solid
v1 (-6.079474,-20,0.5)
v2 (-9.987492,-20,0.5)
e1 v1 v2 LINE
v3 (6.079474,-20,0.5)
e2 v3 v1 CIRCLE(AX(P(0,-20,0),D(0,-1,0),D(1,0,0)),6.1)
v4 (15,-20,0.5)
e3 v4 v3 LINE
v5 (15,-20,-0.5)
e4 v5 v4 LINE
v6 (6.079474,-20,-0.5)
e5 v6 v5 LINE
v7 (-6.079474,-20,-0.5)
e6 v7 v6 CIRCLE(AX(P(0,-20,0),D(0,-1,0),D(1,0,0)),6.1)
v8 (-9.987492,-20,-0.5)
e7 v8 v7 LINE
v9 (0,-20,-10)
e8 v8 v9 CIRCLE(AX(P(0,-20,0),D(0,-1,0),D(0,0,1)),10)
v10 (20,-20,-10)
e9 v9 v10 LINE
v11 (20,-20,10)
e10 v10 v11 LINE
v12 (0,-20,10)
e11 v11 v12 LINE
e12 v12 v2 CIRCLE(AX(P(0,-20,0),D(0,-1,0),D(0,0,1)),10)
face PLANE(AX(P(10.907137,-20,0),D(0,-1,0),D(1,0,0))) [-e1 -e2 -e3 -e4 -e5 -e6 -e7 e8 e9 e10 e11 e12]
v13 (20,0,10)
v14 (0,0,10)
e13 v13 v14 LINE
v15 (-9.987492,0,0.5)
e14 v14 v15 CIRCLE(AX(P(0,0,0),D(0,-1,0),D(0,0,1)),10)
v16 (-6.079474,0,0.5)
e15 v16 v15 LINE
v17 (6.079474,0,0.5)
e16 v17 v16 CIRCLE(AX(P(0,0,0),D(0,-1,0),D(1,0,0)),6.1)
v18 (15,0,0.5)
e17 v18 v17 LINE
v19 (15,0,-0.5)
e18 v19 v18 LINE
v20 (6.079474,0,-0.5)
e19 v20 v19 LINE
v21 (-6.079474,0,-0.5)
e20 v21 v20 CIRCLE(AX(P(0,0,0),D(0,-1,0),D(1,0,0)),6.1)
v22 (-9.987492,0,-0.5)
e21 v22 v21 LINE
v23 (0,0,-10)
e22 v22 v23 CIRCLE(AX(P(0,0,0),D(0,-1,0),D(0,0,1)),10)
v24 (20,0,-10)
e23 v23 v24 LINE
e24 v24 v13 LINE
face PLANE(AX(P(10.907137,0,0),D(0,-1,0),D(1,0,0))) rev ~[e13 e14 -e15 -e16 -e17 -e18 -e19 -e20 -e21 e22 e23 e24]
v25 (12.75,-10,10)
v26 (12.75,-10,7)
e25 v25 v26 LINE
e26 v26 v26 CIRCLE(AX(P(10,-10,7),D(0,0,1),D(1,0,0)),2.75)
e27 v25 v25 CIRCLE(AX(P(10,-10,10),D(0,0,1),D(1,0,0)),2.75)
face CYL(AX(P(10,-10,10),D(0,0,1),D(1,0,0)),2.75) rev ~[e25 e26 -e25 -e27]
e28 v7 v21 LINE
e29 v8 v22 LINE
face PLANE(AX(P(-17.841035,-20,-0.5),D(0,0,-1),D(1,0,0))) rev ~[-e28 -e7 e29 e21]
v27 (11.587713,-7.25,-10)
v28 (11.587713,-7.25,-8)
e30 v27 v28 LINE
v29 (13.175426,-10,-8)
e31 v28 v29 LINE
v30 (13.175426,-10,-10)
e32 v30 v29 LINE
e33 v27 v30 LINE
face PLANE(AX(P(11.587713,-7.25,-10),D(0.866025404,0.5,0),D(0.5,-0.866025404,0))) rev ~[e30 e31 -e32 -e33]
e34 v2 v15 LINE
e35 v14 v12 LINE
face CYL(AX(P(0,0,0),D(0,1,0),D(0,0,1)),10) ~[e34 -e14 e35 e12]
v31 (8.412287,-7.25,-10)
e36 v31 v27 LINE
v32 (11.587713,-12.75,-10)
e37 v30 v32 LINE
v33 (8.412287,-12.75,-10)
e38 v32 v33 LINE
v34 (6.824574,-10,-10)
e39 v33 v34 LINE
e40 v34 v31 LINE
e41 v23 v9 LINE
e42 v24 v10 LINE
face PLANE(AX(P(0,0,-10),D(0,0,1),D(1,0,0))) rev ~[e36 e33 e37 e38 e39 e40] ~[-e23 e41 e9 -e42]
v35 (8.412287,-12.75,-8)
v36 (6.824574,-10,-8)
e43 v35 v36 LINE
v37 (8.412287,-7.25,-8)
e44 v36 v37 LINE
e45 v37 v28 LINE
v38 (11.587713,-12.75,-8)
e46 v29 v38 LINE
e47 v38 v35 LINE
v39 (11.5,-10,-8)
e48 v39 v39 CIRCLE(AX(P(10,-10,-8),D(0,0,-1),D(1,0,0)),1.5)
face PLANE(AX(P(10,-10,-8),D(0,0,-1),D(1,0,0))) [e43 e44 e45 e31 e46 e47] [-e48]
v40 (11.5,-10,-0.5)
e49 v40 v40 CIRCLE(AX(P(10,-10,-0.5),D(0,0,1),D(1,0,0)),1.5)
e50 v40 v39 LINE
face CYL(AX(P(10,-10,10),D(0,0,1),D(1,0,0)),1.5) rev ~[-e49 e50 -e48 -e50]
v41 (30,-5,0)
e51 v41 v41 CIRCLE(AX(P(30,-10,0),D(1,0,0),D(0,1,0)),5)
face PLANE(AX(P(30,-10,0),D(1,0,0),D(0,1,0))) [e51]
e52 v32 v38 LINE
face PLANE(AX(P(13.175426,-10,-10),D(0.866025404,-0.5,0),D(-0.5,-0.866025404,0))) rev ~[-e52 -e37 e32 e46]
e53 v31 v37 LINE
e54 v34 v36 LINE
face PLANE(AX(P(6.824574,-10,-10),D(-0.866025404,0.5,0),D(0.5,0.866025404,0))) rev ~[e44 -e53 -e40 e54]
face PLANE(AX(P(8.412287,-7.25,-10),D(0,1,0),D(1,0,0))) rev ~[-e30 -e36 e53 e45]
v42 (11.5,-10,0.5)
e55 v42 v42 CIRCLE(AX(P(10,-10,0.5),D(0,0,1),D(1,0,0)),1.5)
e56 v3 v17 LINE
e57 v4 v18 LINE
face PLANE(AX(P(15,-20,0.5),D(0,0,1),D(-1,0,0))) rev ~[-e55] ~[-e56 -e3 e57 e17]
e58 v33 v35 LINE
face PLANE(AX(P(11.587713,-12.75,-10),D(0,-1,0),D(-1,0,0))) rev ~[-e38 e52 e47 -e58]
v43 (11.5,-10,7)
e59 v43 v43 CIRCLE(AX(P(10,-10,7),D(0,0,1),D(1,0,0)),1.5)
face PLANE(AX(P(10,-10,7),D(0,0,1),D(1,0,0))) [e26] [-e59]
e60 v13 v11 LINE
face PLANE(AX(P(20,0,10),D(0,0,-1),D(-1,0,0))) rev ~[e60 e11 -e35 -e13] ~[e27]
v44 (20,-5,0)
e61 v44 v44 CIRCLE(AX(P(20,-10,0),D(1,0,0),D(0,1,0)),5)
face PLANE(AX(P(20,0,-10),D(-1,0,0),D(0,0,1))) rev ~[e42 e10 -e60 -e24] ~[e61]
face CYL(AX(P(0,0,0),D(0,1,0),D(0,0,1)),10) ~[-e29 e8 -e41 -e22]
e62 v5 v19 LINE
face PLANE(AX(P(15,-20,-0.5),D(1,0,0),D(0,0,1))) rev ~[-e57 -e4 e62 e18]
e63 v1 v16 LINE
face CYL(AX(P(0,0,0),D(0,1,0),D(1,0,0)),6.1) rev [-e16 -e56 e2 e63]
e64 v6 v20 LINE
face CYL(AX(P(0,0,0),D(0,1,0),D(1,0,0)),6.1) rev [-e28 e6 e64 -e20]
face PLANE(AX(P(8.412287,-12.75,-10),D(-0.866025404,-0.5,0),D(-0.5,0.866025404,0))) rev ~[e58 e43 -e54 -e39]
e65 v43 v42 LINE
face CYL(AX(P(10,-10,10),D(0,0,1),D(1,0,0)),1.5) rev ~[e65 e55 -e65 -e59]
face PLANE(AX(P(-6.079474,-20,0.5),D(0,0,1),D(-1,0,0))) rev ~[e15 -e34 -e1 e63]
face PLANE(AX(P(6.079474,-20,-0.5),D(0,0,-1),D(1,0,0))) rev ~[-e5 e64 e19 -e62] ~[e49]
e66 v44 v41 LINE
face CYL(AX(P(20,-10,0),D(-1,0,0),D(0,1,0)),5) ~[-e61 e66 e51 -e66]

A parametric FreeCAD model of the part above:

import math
import FreeCAD as App
import Part
import Sketcher

V = App.Vector
Q = App.Units.Quantity

doc = App.newDocument("Part")
body = doc.addObject("PartDesign::Body", "Body")

sketch1 = doc.addObject("Sketcher::SketchObject", "Sketch")
body.addObject(sketch1)
sketch1.AttachmentSupport = (doc.XZ_Plane, [""])
sketch1.MapMode = "FlatFace"
sketch1.addGeometry(Part.LineSegment(V(0, -10, 0), V(20, -10, 0)), False)
sketch1.addGeometry(Part.LineSegment(V(20, -10, 0), V(20, 10, 0)), False)
sketch1.addGeometry(Part.LineSegment(V(20, 10, 0), V(0, 10, 0)), False)
sketch1.addGeometry(Part.ArcOfCircle(Part.Circle(V(0, 0, 0), V(0, 0, 1), 10), math.radians(90), math.radians(270)), False)
sketch1.addGeometry(Part.Circle(V(0, 0, 0), V(0, 0, 1), 6), False)
sketch1.addConstraint(Sketcher.Constraint("Coincident", 0, 2, 1, 1))
sketch1.addConstraint(Sketcher.Constraint("Coincident", 1, 2, 2, 1))
sketch1.addConstraint(Sketcher.Constraint("Tangent", 2, 2, 3, 1))
sketch1.addConstraint(Sketcher.Constraint("Tangent", 3, 2, 0, 1))
sketch1.addConstraint(Sketcher.Constraint("Horizontal", 0))
sketch1.addConstraint(Sketcher.Constraint("Vertical", 1))
sketch1.addConstraint(Sketcher.Constraint("Horizontal", 2))
sketch1.addConstraint(Sketcher.Constraint("Coincident", 3, 3, -1, 1))
sketch1.addConstraint(Sketcher.Constraint("Coincident", 4, 3, -1, 1))
sketch1.addConstraint(Sketcher.Constraint("Equal", 2, 1))
sketch1.addConstraint(Sketcher.Constraint("Radius", 3, Q("10 mm")))
sketch1.addConstraint(Sketcher.Constraint("Diameter", 4, Q("12.2 mm")))
pad1 = doc.addObject("PartDesign::Pad", "Pad")
body.addObject(pad1)
pad1.Profile = sketch1
pad1.Length = 20

sketch2 = doc.addObject("Sketcher::SketchObject", "Sketch001")
body.addObject(sketch2)
sketch2.AttachmentSupport = (doc.XY_Plane, [""])
sketch2.MapMode = "FlatFace"
sketch2.AttachmentOffset = App.Placement(V(0, 0, 10), App.Rotation())
sketch2.addGeometry(Part.Circle(V(10, -10, 0), V(0, 0, 1), 1.5), False)
sketch2.addConstraint(Sketcher.Constraint("Diameter", 0, Q("3 mm")))
sketch2.addConstraint(Sketcher.Constraint("DistanceX", -1, 1, 0, 3, Q("10 mm")))
sketch2.addConstraint(Sketcher.Constraint("DistanceY", 0, 3, -1, 1, Q("10 mm")))
pocket1 = doc.addObject("PartDesign::Pocket", "Pocket")
body.addObject(pocket1)
pocket1.Profile = sketch2
pocket1.Length = 25

sketch3 = doc.addObject("Sketcher::SketchObject", "Sketch002")
body.addObject(sketch3)
sketch3.AttachmentSupport = (doc.XZ_Plane, [""])
sketch3.MapMode = "FlatFace"
sketch3.AttachmentOffset = App.Placement(V(0, 0, 20), App.Rotation())
sketch3.addGeometry(Part.LineSegment(V(-17.8, 0.5, 0), V(-17.8, -0.5, 0)), False)
sketch3.addGeometry(Part.LineSegment(V(-17.8, -0.5, 0), V(-6.1, -0.5, 0)), False)
sketch3.addGeometry(Part.ArcOfCircle(Part.Circle(V(0, 0, 0), V(0, 0, 1), 6.1), math.radians(175.3), math.radians(184.7)), False)
sketch3.addGeometry(Part.LineSegment(V(-6.1, 0.5, 0), V(-17.8, 0.5, 0)), False)
sketch3.addGeometry(Part.LineSegment(V(15, 0.5, 0), V(6.1, 0.5, 0)), False)
sketch3.addGeometry(Part.ArcOfCircle(Part.Circle(V(0, 0, 0), V(0, 0, 1), 6.1), math.radians(0), math.radians(4.7)), False)
sketch3.addGeometry(Part.ArcOfCircle(Part.Circle(V(0, 0, 0), V(0, 0, 1), 6.1), math.radians(-4.7), math.radians(0)), False)
sketch3.addGeometry(Part.LineSegment(V(6.1, -0.5, 0), V(15, -0.5, 0)), False)
sketch3.addGeometry(Part.LineSegment(V(15, -0.5, 0), V(15, 0.5, 0)), False)
sketch3.addConstraint(Sketcher.Constraint("Coincident", 0, 2, 1, 1))
sketch3.addConstraint(Sketcher.Constraint("Coincident", 1, 2, 2, 2))
sketch3.addConstraint(Sketcher.Constraint("Coincident", 2, 1, 3, 1))
sketch3.addConstraint(Sketcher.Constraint("Coincident", 3, 2, 0, 1))
sketch3.addConstraint(Sketcher.Constraint("Coincident", 4, 2, 5, 2))
sketch3.addConstraint(Sketcher.Constraint("Tangent", 5, 1, 6, 2))
sketch3.addConstraint(Sketcher.Constraint("Coincident", 6, 1, 7, 1))
sketch3.addConstraint(Sketcher.Constraint("Coincident", 7, 2, 8, 1))
sketch3.addConstraint(Sketcher.Constraint("Coincident", 8, 2, 4, 1))
sketch3.addConstraint(Sketcher.Constraint("Vertical", 0))
sketch3.addConstraint(Sketcher.Constraint("Horizontal", 1))
sketch3.addConstraint(Sketcher.Constraint("Horizontal", 3))
sketch3.addConstraint(Sketcher.Constraint("Horizontal", 4))
sketch3.addConstraint(Sketcher.Constraint("Horizontal", 7))
sketch3.addConstraint(Sketcher.Constraint("Vertical", 8))
sketch3.addConstraint(Sketcher.Constraint("Coincident", 2, 3, -1, 1))
sketch3.addConstraint(Sketcher.Constraint("Coincident", 5, 3, -1, 1))
sketch3.addConstraint(Sketcher.Constraint("Equal", 2, 5))
sketch3.addConstraint(Sketcher.Constraint("Equal", 5, 6))
sketch3.addConstraint(Sketcher.Constraint("PointOnObject", 5, 1, -1))
sketch3.addConstraint(Sketcher.Constraint("Horizontal", 3, 2, 4, 2))
sketch3.addConstraint(Sketcher.Constraint("Horizontal", 1, 2, 6, 1))
sketch3.addConstraint(Sketcher.Constraint("Vertical", 1, 2, 2, 1))
sketch3.addConstraint(Sketcher.Constraint("Radius", 2, Q("6.1 mm")))
sketch3.addConstraint(Sketcher.Constraint("DistanceY", 0, 2, 0, 1, Q("1 mm")))
sketch3.addConstraint(Sketcher.Constraint("DistanceX", -1, 1, 7, 2, Q("15 mm")))
sketch3.addConstraint(Sketcher.Constraint("DistanceX", 1, 1, 1, 2, Q("11.761561 mm")))
pocket2 = doc.addObject("PartDesign::Pocket", "Pocket001")
body.addObject(pocket2)
pocket2.Profile = sketch3
pocket2.Length = 25

sketch4 = doc.addObject("Sketcher::SketchObject", "Sketch003")
body.addObject(sketch4)
sketch4.AttachmentSupport = (doc.YZ_Plane, [""])
sketch4.MapMode = "FlatFace"
sketch4.AttachmentOffset = App.Placement(V(0, 0, 20), App.Rotation())
sketch4.addGeometry(Part.Circle(V(-10, 0, 0), V(0, 0, 1), 5), False)
sketch4.addConstraint(Sketcher.Constraint("PointOnObject", 0, 3, -1))
sketch4.addConstraint(Sketcher.Constraint("Diameter", 0, Q("10 mm")))
sketch4.addConstraint(Sketcher.Constraint("DistanceX", 0, 3, -1, 1, Q("10 mm")))
pad2 = doc.addObject("PartDesign::Pad", "Pad001")
body.addObject(pad2)
pad2.Profile = sketch4
pad2.Length = 10

sketch5 = doc.addObject("Sketcher::SketchObject", "Sketch004")
body.addObject(sketch5)
sketch5.AttachmentSupport = (doc.XY_Plane, [""])
sketch5.MapMode = "FlatFace"
sketch5.AttachmentOffset = App.Placement(V(0, 0, 10), App.Rotation())
sketch5.addGeometry(Part.Circle(V(10, -10, 0), V(0, 0, 1), 2.8), False)
sketch5.addGeometry(Part.Circle(V(10, -10, 0), V(0, 0, 1), 1.5), False)
sketch5.addConstraint(Sketcher.Constraint("Coincident", 1, 3, 0, 3))
sketch5.addConstraint(Sketcher.Constraint("Diameter", 1, Q("3 mm")))
sketch5.addConstraint(Sketcher.Constraint("Diameter", 0, Q("5.5 mm")))
sketch5.addConstraint(Sketcher.Constraint("DistanceX", -1, 1, 0, 3, Q("10 mm")))
sketch5.addConstraint(Sketcher.Constraint("DistanceY", 0, 3, -1, 1, Q("10 mm")))
pocket3 = doc.addObject("PartDesign::Pocket", "Pocket002")
body.addObject(pocket3)
pocket3.Profile = sketch5
pocket3.Length = 3

sketch6 = doc.addObject("Sketcher::SketchObject", "Sketch005")
body.addObject(sketch6)
sketch6.AttachmentSupport = (doc.XY_Plane, [""])
sketch6.MapMode = "FlatFace"
sketch6.AttachmentOffset = App.Placement(V(0, 0, -10), App.Rotation())
sketch6.addGeometry(Part.LineSegment(V(11.6, -12.8, 0), V(8.4, -12.8, 0)), False)
sketch6.addGeometry(Part.LineSegment(V(8.4, -12.8, 0), V(6.8, -10, 0)), False)
sketch6.addGeometry(Part.LineSegment(V(6.8, -10, 0), V(8.4, -7.2, 0)), False)
sketch6.addGeometry(Part.LineSegment(V(8.4, -7.2, 0), V(11.6, -7.2, 0)), False)
sketch6.addGeometry(Part.LineSegment(V(11.6, -7.2, 0), V(13.2, -10, 0)), False)
sketch6.addGeometry(Part.LineSegment(V(13.2, -10, 0), V(11.6, -12.8, 0)), False)
sketch6.addGeometry(Part.Circle(V(10, -10, 0), V(0, 0, 1), 1.5), False)
sketch6.addConstraint(Sketcher.Constraint("Coincident", 0, 2, 1, 1))
sketch6.addConstraint(Sketcher.Constraint("Coincident", 1, 2, 2, 1))
sketch6.addConstraint(Sketcher.Constraint("Coincident", 2, 2, 3, 1))
sketch6.addConstraint(Sketcher.Constraint("Coincident", 3, 2, 4, 1))
sketch6.addConstraint(Sketcher.Constraint("Coincident", 4, 2, 5, 1))
sketch6.addConstraint(Sketcher.Constraint("Coincident", 5, 2, 0, 1))
sketch6.addConstraint(Sketcher.Constraint("Horizontal", 0))
sketch6.addConstraint(Sketcher.Constraint("Horizontal", 3))
sketch6.addConstraint(Sketcher.Constraint("Parallel", 1, 4))
sketch6.addConstraint(Sketcher.Constraint("Parallel", 2, 5))
sketch6.addConstraint(Sketcher.Constraint("Horizontal", 6, 3, 1, 2))
sketch6.addConstraint(Sketcher.Constraint("Horizontal", 1, 2, 4, 2))
sketch6.addConstraint(Sketcher.Constraint("Vertical", 0, 2, 2, 2))
sketch6.addConstraint(Sketcher.Constraint("Vertical", 3, 2, 5, 2))
sketch6.addConstraint(Sketcher.Constraint("Diameter", 6, Q("3 mm")))
sketch6.addConstraint(Sketcher.Constraint("Angle", 1, Q("120 deg")))
sketch6.addConstraint(Sketcher.Constraint("DistanceX", -1, 1, 6, 3, Q("10 mm")))
sketch6.addConstraint(Sketcher.Constraint("DistanceY", 6, 3, -1, 1, Q("10 mm")))
sketch6.addConstraint(Sketcher.Constraint("DistanceY", 0, 2, 2, 2, Q("5.5 mm")))
sketch6.addConstraint(Sketcher.Constraint("DistanceX", 0, 2, 0, 1, Q("3.175426 mm")))
sketch6.addConstraint(Sketcher.Constraint("DistanceX", -1, 1, 0, 2, Q("8.412287 mm")))
pocket4 = doc.addObject("PartDesign::Pocket", "Pocket003")
body.addObject(pocket4)
pocket4.Profile = sketch6
pocket4.Length = 2
pocket4.Reversed = True

doc.recompute()
